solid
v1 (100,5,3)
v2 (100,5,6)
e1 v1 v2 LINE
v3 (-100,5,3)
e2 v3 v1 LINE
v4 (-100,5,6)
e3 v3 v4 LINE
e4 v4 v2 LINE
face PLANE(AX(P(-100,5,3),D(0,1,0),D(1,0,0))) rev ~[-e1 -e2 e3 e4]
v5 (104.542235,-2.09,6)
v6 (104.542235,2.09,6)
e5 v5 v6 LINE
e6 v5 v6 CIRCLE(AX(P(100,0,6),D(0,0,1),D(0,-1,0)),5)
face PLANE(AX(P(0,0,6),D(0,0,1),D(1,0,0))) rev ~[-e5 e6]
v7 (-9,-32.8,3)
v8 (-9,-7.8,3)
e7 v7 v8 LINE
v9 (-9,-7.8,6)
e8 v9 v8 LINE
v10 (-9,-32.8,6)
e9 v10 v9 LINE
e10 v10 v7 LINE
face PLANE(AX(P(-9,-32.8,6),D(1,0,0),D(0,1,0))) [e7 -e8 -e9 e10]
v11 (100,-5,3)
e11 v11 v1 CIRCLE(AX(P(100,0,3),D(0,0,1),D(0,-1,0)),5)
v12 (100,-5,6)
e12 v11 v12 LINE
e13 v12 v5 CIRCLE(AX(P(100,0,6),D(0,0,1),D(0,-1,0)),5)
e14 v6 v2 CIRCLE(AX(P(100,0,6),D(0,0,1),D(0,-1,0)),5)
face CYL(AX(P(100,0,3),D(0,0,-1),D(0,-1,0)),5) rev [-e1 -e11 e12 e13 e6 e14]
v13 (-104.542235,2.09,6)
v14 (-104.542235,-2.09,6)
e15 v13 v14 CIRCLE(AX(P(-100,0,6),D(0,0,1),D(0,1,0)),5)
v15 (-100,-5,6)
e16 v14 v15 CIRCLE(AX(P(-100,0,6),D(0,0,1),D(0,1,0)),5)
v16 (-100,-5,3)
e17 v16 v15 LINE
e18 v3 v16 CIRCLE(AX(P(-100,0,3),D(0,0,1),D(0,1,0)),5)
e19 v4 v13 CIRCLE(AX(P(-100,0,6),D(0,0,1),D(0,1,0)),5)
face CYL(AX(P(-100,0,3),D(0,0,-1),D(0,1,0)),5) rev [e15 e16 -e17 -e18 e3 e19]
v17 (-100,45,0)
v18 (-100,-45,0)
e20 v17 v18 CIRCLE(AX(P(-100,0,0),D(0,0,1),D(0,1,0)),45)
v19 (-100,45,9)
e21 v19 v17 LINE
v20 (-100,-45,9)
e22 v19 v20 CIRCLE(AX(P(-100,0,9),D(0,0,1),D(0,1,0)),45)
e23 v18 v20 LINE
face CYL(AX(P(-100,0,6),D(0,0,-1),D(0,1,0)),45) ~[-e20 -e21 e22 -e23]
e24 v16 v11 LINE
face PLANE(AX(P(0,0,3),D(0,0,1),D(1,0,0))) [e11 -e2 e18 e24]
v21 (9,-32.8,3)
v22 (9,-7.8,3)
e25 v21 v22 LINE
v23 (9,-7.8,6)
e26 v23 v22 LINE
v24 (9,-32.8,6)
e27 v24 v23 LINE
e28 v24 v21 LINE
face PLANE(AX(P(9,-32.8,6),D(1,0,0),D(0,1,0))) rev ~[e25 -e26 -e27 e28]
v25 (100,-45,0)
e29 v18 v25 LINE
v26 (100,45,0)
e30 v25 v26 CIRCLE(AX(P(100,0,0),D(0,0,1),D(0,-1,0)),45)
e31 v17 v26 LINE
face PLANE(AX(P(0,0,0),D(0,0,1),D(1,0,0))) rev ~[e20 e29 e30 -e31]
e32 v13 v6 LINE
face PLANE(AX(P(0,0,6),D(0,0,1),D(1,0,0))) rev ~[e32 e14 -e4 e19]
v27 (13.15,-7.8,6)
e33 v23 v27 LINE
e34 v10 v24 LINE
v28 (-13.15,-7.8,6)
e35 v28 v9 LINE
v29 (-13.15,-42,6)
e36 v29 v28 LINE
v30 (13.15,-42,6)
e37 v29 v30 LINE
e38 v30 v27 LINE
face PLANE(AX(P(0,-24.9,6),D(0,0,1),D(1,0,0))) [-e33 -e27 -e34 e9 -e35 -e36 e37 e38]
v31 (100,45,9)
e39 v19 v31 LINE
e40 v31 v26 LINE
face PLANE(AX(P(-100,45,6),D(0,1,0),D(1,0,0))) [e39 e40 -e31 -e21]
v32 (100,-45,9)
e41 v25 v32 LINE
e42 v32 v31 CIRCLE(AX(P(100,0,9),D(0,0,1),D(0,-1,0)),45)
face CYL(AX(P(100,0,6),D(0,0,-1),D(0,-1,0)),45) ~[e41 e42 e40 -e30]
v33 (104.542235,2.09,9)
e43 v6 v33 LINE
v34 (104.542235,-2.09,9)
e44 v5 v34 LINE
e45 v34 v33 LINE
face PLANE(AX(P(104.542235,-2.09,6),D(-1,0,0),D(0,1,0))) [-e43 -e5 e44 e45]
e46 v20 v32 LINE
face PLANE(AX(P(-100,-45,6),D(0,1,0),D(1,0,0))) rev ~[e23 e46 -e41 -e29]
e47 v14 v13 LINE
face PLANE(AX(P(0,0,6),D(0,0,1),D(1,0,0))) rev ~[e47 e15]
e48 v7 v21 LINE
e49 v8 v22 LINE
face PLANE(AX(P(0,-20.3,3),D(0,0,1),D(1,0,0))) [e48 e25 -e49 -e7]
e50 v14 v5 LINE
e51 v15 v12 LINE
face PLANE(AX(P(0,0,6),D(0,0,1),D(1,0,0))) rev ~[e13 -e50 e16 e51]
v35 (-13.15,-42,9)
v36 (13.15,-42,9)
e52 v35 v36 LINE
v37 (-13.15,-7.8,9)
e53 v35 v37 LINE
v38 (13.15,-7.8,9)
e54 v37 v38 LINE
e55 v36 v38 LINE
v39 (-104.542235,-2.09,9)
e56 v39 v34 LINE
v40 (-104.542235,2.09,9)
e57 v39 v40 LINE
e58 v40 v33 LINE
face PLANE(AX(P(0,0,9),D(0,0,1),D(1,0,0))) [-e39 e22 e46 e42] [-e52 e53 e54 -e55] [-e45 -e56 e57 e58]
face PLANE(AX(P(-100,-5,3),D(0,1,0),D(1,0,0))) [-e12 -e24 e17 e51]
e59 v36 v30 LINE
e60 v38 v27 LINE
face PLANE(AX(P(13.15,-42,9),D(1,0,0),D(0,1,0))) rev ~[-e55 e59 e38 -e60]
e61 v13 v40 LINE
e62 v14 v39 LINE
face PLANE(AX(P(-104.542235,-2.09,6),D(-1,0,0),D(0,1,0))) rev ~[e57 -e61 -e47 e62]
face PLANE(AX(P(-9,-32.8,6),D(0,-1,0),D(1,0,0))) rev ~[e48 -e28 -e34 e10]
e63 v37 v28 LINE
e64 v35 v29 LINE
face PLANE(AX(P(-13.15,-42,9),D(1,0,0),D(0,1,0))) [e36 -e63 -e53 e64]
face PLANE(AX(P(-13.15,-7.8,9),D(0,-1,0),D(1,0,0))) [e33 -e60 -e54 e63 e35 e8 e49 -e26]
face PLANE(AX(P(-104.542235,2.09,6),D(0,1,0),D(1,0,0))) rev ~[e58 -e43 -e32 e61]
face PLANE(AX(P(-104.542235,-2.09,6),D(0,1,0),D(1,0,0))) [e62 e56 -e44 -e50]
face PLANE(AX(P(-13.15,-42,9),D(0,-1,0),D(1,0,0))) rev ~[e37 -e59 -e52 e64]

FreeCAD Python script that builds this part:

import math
import FreeCAD as App
import Part
import Sketcher
from FreeCAD import Vector


def add_polygon(sketch, points):
    """Adds a closed chain of lines whose ends are joined by coincident constraints."""
    first, n = sketch.GeometryCount, len(points)
    for a, b in zip(points, points[1:] + points[:1]):
        sketch.addGeometry(Part.LineSegment(App.Vector(*a, 0), App.Vector(*b, 0)), False)
    for i in range(n):
        sketch.addConstraint(Sketcher.Constraint("Coincident", first + i, 2, first + (i + 1) % n, 1))

doc = App.newDocument("Part")
body = doc.addObject("PartDesign::Body", "Body")

sketch1 = doc.addObject("Sketcher::SketchObject", "Sketch")
body.addObject(sketch1)
sketch1.AttachmentSupport = (doc.XY_Plane, [""])
sketch1.MapMode = "FlatFace"
sketch1.addGeometry([
    Part.ArcOfCircle(Part.Circle(Vector(-100, 0, 0), Vector(0, 0, 1), 45), math.radians(90), math.radians(270)),
    Part.LineSegment(Vector(-100, -45, 0), Vector(100, -45, 0)),
    Part.ArcOfCircle(Part.Circle(Vector(100, 0, 0), Vector(0, 0, 1), 45), math.radians(-90), math.radians(90)),
    Part.LineSegment(Vector(100, 45, 0), Vector(-100, 45, 0)),
], False)
sketch1.addConstraint([
    Sketcher.Constraint("Tangent", 0, 2, 1, 1),
    Sketcher.Constraint("Tangent", 1, 2, 2, 1),
    Sketcher.Constraint("Tangent", 2, 2, 3, 1),
    Sketcher.Constraint("Tangent", 3, 2, 0, 1),
    Sketcher.Constraint("Horizontal", 1),
    Sketcher.Constraint("Horizontal", 3),
    Sketcher.Constraint("Symmetric", 0, 3, 2, 3, -1, 1),
    Sketcher.Constraint("Radius", 0, 45.0),
    Sketcher.Constraint("DistanceX", 1, 1, 1, 2, 200.0),
])
pad1 = doc.addObject("PartDesign::Pad", "Pad")
body.addObject(pad1)
pad1.Profile = sketch1
pad1.Length = 3

sketch2 = doc.addObject("Sketcher::SketchObject", "Sketch001")
body.addObject(sketch2)
sketch2.AttachmentSupport = (doc.XY_Plane, [""])
sketch2.MapMode = "FlatFace"
sketch2.AttachmentOffset = App.Placement(Vector(0, 0, 3), App.Rotation())
sketch2.addGeometry([
    Part.ArcOfCircle(Part.Circle(Vector(-100, 0, 0), Vector(0, 0, 1), 45), math.radians(90), math.radians(270)),
    Part.LineSegment(Vector(-100, -45, 0), Vector(100, -45, 0)),
    Part.ArcOfCircle(Part.Circle(Vector(100, 0, 0), Vector(0, 0, 1), 45), math.radians(-90), math.radians(90)),
    Part.LineSegment(Vector(100, 45, 0), Vector(-100, 45, 0)),
    Part.ArcOfCircle(Part.Circle(Vector(-100, 0, 0), Vector(0, 0, 1), 5), math.radians(90), math.radians(270)),
    Part.LineSegment(Vector(-100, 5, 0), Vector(100, 5, 0)),
    Part.ArcOfCircle(Part.Circle(Vector(100, 0, 0), Vector(0, 0, 1), 5), math.radians(-90), math.radians(90)),
    Part.LineSegment(Vector(100, -5, 0), Vector(-100, -5, 0)),
], False)
sketch2.addConstraint([
    Sketcher.Constraint("Tangent", 0, 2, 1, 1),
    Sketcher.Constraint("Tangent", 1, 2, 2, 1),
    Sketcher.Constraint("Tangent", 2, 2, 3, 1),
    Sketcher.Constraint("Tangent", 3, 2, 0, 1),
    Sketcher.Constraint("Tangent", 4, 1, 5, 1),
    Sketcher.Constraint("Tangent", 5, 2, 6, 2),
    Sketcher.Constraint("Tangent", 6, 1, 7, 1),
    Sketcher.Constraint("Tangent", 7, 2, 4, 2),
    Sketcher.Constraint("Horizontal", 1),
    Sketcher.Constraint("Horizontal", 3),
    Sketcher.Constraint("Horizontal", 5),
    Sketcher.Constraint("Horizontal", 7),
    Sketcher.Constraint("Coincident", 4, 3, 0, 3),
    Sketcher.Constraint("Symmetric", 0, 3, 2, 3, -1, 1),
    Sketcher.Constraint("Vertical", 6, 3, 1, 2),
    Sketcher.Constraint("Radius", 0, 45.0),
    Sketcher.Constraint("Radius", 4, 5.0),
    Sketcher.Constraint("DistanceX", 1, 1, 1, 2, 200.0),
])
pad2 = doc.addObject("PartDesign::Pad", "Pad001")
body.addObject(pad2)
pad2.Profile = sketch2
pad2.Length = 3

sketch3 = doc.addObject("Sketcher::SketchObject", "Sketch002")
body.addObject(sketch3)
sketch3.AttachmentSupport = (doc.XY_Plane, [""])
sketch3.MapMode = "FlatFace"
sketch3.AttachmentOffset = App.Placement(Vector(0, 0, 6), App.Rotation())
sketch3.addGeometry(Part.ArcOfCircle(Part.Circle(Vector(-100, 0, 0), Vector(0, 0, 1), 45), math.radians(90), math.radians(270)), False)
sketch3.addGeometry(Part.LineSegment(Vector(-100, -45, 0), Vector(100, -45, 0)), False)
sketch3.addGeometry(Part.ArcOfCircle(Part.Circle(Vector(100, 0, 0), Vector(0, 0, 1), 45), math.radians(-90), math.radians(90)), False)
sketch3.addGeometry(Part.LineSegment(Vector(100, 45, 0), Vector(-100, 45, 0)), False)
add_polygon(sketch3, [(104.542235, -2.09), (-104.542235, -2.09), (-104.542235, 2.09), (104.542235, 2.09)])
sketch3.addConstraint([
    Sketcher.Constraint("Tangent", 0, 2, 1, 1),
    Sketcher.Constraint("Tangent", 1, 2, 2, 1),
    Sketcher.Constraint("Tangent", 2, 2, 3, 1),
    Sketcher.Constraint("Tangent", 3, 2, 0, 1),
    Sketcher.Constraint("Horizontal", 1),
    Sketcher.Constraint("Horizontal", 3),
    Sketcher.Constraint("Horizontal", 4),
    Sketcher.Constraint("Vertical", 5),
    Sketcher.Constraint("Horizontal", 6),
    Sketcher.Constraint("Vertical", 7),
    Sketcher.Constraint("Symmetric", 0, 3, 2, 3, -1, 1),
    Sketcher.Constraint("Symmetric", 4, 2, 6, 2, -1, 1),
    Sketcher.Constraint("Radius", 0, 45.0),
    Sketcher.Constraint("DistanceX", 1, 1, 1, 2, 200.0),
    Sketcher.Constraint("DistanceY", 5, 1, 5, 2, 4.18),
    Sketcher.Constraint("DistanceX", 4, 2, 4, 1, 209.08447),
])
pad3 = doc.addObject("PartDesign::Pad", "Pad002")
body.addObject(pad3)
pad3.Profile = sketch3
pad3.Length = 3

sketch4 = doc.addObject("Sketcher::SketchObject", "Sketch003")
body.addObject(sketch4)
sketch4.AttachmentSupport = (doc.XY_Plane, [""])
sketch4.MapMode = "FlatFace"
sketch4.AttachmentOffset = App.Placement(Vector(0, 0, 9), App.Rotation())
add_polygon(sketch4, [(-13.15, -7.8), (-13.15, -42), (13.15, -42), (13.15, -7.8)])
sketch4.addConstraint([
    Sketcher.Constraint("Vertical", 0),
    Sketcher.Constraint("Horizontal", 1),
    Sketcher.Constraint("Vertical", 2),
    Sketcher.Constraint("Horizontal", 3),
    Sketcher.Constraint("DistanceX", 1, 1, 1, 2, 26.3),
    Sketcher.Constraint("DistanceY", 0, 2, 0, 1, 34.2),
    Sketcher.Constraint("DistanceY", 0, 2, -1, 1, 42.0),
    Sketcher.Constraint("DistanceX", 0, 2, -1, 1, 13.15),
])
pocket1 = doc.addObject("PartDesign::Pocket", "Pocket")
body.addObject(pocket1)
pocket1.Profile = sketch4
pocket1.Length = 3

sketch5 = doc.addObject("Sketcher::SketchObject", "Sketch004")
body.addObject(sketch5)
sketch5.AttachmentSupport = (doc.XY_Plane, [""])
sketch5.MapMode = "FlatFace"
sketch5.AttachmentOffset = App.Placement(Vector(0, 0, 6), App.Rotation())
add_polygon(sketch5, [(-9, -7.8), (-9, -32.8), (9, -32.8), (9, -7.8)])
sketch5.addConstraint([
    Sketcher.Constraint("Vertical", 0),
    Sketcher.Constraint("Horizontal", 1),
    Sketcher.Constraint("Vertical", 2),
    Sketcher.Constraint("Horizontal", 3),
    Sketcher.Constraint("DistanceX", 1, 1, 1, 2, 18.0),
    Sketcher.Constraint("DistanceY", 0, 2, 0, 1, 25.0),
    Sketcher.Constraint("DistanceX", 0, 2, -1, 1, 9.0),
    Sketcher.Constraint("DistanceY", 0, 2, -1, 1, 32.8),
])
pocket2 = doc.addObject("PartDesign::Pocket", "Pocket001")
body.addObject(pocket2)
pocket2.Profile = sketch5
pocket2.Length = 3

doc.recompute()
